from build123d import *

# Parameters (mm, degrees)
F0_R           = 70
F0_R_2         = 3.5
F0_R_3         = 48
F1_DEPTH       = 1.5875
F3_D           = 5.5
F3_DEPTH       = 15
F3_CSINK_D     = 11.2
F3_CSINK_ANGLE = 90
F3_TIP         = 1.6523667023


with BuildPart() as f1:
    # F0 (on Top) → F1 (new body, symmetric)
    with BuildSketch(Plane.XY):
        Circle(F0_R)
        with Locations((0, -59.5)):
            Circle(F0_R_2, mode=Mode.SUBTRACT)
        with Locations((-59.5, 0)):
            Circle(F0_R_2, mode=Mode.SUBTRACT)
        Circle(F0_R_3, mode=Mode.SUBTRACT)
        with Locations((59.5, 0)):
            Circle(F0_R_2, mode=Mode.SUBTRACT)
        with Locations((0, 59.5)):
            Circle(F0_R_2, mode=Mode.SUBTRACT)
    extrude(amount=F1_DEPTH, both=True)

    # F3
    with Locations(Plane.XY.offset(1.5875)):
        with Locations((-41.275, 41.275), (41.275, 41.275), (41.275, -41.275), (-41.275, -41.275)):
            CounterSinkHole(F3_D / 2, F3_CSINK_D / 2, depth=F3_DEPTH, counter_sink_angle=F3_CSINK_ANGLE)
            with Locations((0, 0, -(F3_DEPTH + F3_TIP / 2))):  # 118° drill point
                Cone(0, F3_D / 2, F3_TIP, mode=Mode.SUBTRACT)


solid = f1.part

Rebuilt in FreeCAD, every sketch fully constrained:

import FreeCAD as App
import Part
import Sketcher
Q = App.Units.Quantity

doc = App.newDocument("Part")
body = doc.addObject("PartDesign::Body", "Body")

# Sketch on XY plane
sketch1 = doc.addObject("Sketcher::SketchObject", "Sketch")
body.addObject(sketch1)
sketch1.AttachmentSupport = (doc.XY_Plane, [""])
sketch1.MapMode = "FlatFace"
sketch1.addGeometry([
    Part.Circle(App.Vector(0, 0, 0), App.Vector(0, 0, 1), 70),  # 0
    Part.Circle(App.Vector(0, -59.5, 0), App.Vector(0, 0, 1), 3.5),  # 1
    Part.Circle(App.Vector(-59.5, 0, 0), App.Vector(0, 0, 1), 3.5),  # 2
    Part.Circle(App.Vector(0, 0, 0), App.Vector(0, 0, 1), 48),  # 3
    Part.Circle(App.Vector(59.5, 0, 0), App.Vector(0, 0, 1), 3.5),  # 4
    Part.Circle(App.Vector(0, 59.5, 0), App.Vector(0, 0, 1), 3.5),  # 5
], False)
sketch1.addConstraint([
    Sketcher.Constraint("Coincident", 0, 3, -1, 1),
    Sketcher.Constraint("Coincident", 3, 3, -1, 1),
    Sketcher.Constraint("Equal", 1, 2),
    Sketcher.Constraint("Equal", 2, 4),
    Sketcher.Constraint("Equal", 4, 5),
    Sketcher.Constraint("Symmetric", 2, 3, 4, 3, -1, 1),
    Sketcher.Constraint("Symmetric", 1, 3, 5, 3, -1, 1),
    Sketcher.Constraint("PointOnObject", 1, 3, -2),
    Sketcher.Constraint("PointOnObject", 2, 3, -1),
    Sketcher.Constraint("Diameter", 0, Q("140 mm")),
    Sketcher.Constraint("Diameter", 1, Q("7 mm")),
    Sketcher.Constraint("Diameter", 3, Q("96 mm")),
    Sketcher.Constraint("DistanceX", 2, 3, 4, 3, Q("119 mm")),
    Sketcher.Constraint("DistanceY", 1, 3, 5, 3, Q("119 mm")),
])
pad1 = doc.addObject("PartDesign::Pad", "Pad")
body.addObject(pad1)
pad1.Profile = sketch1
pad1.Length = 3.175
pad1.Midplane = True

# Sketch on XY plane
sketch2 = doc.addObject("Sketcher::SketchObject", "Sketch001")
body.addObject(sketch2)
sketch2.AttachmentSupport = (doc.XY_Plane, [""])
sketch2.MapMode = "FlatFace"
sketch2.AttachmentOffset = App.Placement(App.Vector(0, 0, 1.5875), App.Rotation())
sketch2.addGeometry([
    Part.Circle(App.Vector(-41.275, 41.275, 0), App.Vector(0, 0, 1), 2.75),
    Part.Circle(App.Vector(41.275, 41.275, 0), App.Vector(0, 0, 1), 2.75),
    Part.Circle(App.Vector(41.275, -41.275, 0), App.Vector(0, 0, 1), 2.75),
    Part.Circle(App.Vector(-41.275, -41.275, 0), App.Vector(0, 0, 1), 2.75),
], False)
sketch2.addConstraint([
    Sketcher.Constraint("Equal", 0, 1),
    Sketcher.Constraint("Equal", 1, 2),
    Sketcher.Constraint("Equal", 2, 3),
    Sketcher.Constraint("Symmetric", 0, 3, 2, 3, -1, 1),
    Sketcher.Constraint("Symmetric", 1, 3, 3, 3, -1, 1),
    Sketcher.Constraint("Symmetric", 0, 3, 1, 3, -2),
    Sketcher.Constraint("Diameter", 0, Q("5.5 mm")),
    Sketcher.Constraint("DistanceX", 0, 3, 1, 3, Q("82.55 mm")),
    Sketcher.Constraint("DistanceY", 2, 3, 1, 3, Q("82.55 mm")),
])
doc.recompute()
hole = doc.addObject("PartDesign::Hole", "Hole")
body.addObject(hole)
hole.Profile = sketch2
hole.ThreadType = "None"
hole.Diameter = 5.5
hole.DepthType = "Dimension"
hole.Depth = 15
hole.DrillPoint = "Angled"
hole.DrillPointAngle = 118
hole.HoleCutType = "Countersink"
hole.HoleCutDiameter = 11.2
hole.HoleCutCountersinkAngle = 90

doc.recompute()
